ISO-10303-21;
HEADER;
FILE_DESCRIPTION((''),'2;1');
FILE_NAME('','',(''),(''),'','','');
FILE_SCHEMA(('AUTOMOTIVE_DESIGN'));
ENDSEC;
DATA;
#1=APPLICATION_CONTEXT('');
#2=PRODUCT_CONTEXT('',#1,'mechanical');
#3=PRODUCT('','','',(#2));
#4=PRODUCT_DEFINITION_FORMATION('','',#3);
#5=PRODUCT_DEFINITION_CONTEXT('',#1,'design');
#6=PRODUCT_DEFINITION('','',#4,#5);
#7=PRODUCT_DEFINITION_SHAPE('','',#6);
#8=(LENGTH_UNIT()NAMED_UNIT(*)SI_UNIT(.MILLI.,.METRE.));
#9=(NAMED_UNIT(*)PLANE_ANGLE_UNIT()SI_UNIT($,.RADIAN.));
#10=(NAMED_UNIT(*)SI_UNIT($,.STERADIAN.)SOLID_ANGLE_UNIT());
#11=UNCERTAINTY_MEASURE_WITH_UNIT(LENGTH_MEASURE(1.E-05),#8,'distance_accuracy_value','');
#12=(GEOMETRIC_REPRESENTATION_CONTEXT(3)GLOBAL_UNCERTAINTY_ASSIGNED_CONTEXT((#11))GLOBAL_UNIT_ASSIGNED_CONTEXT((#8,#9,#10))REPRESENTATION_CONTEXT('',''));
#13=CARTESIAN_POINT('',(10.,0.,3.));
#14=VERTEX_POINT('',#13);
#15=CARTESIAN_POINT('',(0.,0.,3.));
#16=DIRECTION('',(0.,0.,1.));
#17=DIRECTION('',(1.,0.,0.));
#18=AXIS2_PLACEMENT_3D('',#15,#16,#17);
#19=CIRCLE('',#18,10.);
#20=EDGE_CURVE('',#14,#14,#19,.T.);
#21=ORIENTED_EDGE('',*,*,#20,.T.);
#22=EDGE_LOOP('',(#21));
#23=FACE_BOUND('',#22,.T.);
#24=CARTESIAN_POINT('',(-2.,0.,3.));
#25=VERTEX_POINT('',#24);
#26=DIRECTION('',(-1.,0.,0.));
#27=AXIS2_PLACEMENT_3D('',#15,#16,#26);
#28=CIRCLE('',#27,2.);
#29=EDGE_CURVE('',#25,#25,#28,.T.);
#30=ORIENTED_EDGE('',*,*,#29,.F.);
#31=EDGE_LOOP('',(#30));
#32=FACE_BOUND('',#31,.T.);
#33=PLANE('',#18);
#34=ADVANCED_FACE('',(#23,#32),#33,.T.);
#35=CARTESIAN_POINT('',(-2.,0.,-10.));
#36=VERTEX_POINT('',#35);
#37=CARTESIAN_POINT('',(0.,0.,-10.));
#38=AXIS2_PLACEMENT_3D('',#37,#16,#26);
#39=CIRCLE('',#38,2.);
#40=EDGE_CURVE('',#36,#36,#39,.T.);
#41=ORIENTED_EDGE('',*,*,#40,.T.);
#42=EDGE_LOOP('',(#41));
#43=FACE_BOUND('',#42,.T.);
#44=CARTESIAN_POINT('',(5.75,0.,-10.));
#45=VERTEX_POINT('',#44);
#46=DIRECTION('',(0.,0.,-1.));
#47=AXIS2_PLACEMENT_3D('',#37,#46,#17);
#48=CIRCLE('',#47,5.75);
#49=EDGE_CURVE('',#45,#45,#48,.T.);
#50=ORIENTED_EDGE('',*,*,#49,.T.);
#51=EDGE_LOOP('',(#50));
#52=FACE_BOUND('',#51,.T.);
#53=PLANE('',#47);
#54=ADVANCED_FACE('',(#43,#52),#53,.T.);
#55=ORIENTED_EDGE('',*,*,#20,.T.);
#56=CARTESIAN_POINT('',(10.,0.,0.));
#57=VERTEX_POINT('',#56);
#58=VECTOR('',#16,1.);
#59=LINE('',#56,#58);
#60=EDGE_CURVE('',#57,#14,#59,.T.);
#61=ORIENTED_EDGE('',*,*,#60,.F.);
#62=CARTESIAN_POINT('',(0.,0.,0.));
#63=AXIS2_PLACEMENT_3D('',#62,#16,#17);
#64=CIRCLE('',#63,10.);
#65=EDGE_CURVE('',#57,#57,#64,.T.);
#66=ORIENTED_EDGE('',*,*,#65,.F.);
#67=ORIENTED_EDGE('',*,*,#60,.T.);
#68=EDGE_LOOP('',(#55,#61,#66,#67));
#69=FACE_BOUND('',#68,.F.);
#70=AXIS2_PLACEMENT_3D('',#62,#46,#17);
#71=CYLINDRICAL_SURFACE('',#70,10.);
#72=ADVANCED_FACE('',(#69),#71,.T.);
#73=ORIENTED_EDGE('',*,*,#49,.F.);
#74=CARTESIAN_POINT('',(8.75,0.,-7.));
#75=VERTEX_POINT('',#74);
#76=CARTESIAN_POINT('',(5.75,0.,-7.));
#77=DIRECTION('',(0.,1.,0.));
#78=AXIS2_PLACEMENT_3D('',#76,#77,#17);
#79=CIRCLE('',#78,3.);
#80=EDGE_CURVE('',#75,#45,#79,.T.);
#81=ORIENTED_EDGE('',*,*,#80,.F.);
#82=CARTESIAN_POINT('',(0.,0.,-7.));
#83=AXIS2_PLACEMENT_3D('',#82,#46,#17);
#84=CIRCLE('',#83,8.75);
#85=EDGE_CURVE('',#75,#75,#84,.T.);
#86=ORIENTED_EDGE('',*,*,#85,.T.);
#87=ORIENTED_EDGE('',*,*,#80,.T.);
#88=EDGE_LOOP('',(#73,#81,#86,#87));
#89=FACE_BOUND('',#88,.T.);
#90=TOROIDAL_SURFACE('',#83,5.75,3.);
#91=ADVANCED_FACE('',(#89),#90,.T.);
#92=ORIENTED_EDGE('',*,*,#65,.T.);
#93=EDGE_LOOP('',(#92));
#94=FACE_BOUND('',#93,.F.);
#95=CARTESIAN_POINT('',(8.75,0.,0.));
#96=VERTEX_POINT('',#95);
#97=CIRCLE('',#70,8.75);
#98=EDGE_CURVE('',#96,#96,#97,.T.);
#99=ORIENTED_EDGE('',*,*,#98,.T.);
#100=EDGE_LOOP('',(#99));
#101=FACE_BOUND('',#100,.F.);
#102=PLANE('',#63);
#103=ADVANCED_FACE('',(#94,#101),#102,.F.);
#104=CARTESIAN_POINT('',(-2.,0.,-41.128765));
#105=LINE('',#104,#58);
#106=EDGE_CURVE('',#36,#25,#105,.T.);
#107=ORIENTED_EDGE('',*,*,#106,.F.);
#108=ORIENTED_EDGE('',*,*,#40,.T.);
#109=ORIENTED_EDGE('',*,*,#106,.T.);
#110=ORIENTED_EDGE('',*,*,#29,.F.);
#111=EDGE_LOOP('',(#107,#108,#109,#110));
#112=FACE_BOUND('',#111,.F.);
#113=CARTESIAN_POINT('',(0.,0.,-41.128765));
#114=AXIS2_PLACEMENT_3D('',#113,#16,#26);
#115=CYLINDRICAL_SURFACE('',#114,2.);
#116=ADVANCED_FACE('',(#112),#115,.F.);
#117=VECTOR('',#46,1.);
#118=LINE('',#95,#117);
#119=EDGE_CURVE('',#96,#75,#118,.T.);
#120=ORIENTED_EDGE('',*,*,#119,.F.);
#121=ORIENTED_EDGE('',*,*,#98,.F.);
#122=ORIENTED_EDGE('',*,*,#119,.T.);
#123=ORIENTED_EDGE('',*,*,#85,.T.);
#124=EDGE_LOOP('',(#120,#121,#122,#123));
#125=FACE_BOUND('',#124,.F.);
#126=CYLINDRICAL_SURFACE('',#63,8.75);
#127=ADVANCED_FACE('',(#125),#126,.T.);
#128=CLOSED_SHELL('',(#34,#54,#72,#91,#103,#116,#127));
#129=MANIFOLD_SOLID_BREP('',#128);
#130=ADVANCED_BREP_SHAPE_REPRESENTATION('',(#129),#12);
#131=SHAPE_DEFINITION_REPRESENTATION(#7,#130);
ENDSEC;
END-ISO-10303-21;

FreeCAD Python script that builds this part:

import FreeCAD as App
import Part
import Sketcher

V = App.Vector
Q = App.Units.Quantity


def edges_at(feature, points):
    """Names of the edges that pass closest to the given points."""
    edges = feature.Shape.Edges
    near = lambda p: min(range(len(edges)), key=lambda i: edges[i].distToShape(Part.Vertex(*p))[0])
    return sorted({f"Edge{near(p) + 1}" for p in points})

doc = App.newDocument("Part")
params = doc.addObject("Spreadsheet::Sheet", "Params")
for row, (alias, value) in enumerate([
    ("sketch1_diameter", "20 mm"),
    ("pad1_length", "3 mm"),
    ("sketch2_diameter", "17.5 mm"),
    ("pad2_length", "10 mm"),
    ("fillet_radius", "3 mm"),
    ("sketch3_diameter", "4 mm"),
    ("hole_diameter", "4 mm"),
], start=1):
    params.set(f"A{row}", alias)
    params.set(f"B{row}", "=" + value)
    params.setAlias(f"B{row}", alias)

body = doc.addObject("PartDesign::Body", "Body")

# Sketch on XY plane
sketch1 = doc.addObject("Sketcher::SketchObject", "Sketch")
body.addObject(sketch1)
sketch1.AttachmentSupport = (doc.XY_Plane, [""])
sketch1.MapMode = "FlatFace"
sketch1.addGeometry(Part.Circle(V(0, 0, 0), V(0, 0, 1), 10), False)
sketch1.addConstraint(Sketcher.Constraint("Coincident", 0, 3, -1, 1))
sketch1.addConstraint(Sketcher.Constraint("Diameter", 0, Q("20 mm")))
sketch1.setExpression("Constraints[1]", "Params.sketch1_diameter")
pad1 = doc.addObject("PartDesign::Pad", "Pad")
body.addObject(pad1)
pad1.Profile = sketch1
pad1.setExpression("Length", "Params.pad1_length")

# Sketch on XY plane
sketch2 = doc.addObject("Sketcher::SketchObject", "Sketch001")
body.addObject(sketch2)
sketch2.AttachmentSupport = (doc.XY_Plane, [""])
sketch2.MapMode = "FlatFace"
sketch2.addGeometry(Part.Circle(V(0, 0, 0), V(0, 0, 1), 9), False)
sketch2.addConstraint(Sketcher.Constraint("Coincident", 0, 3, -1, 1))
sketch2.addConstraint(Sketcher.Constraint("Diameter", 0, Q("17.5 mm")))
sketch2.setExpression("Constraints[1]", "Params.sketch2_diameter")
pad2 = doc.addObject("PartDesign::Pad", "Pad001")
body.addObject(pad2)
pad2.Profile = sketch2
pad2.setExpression("Length", "Params.pad2_length")
pad2.Reversed = True
doc.recompute()

fillet = doc.addObject("PartDesign::Fillet", "Fillet")
body.addObject(fillet)
fillet.Base = (pad2, edges_at(pad2, [(-8.75, 0, -10)]))
fillet.setExpression("Radius", "Params.fillet_radius")

# Sketch on XY plane
sketch3 = doc.addObject("Sketcher::SketchObject", "Sketch002")
body.addObject(sketch3)
sketch3.AttachmentSupport = (doc.XY_Plane, [""])
sketch3.MapMode = "FlatFace"
sketch3.AttachmentOffset = App.Placement(V(0, 0, -10), App.Rotation())
sketch3.addGeometry(Part.Circle(V(0, 0, 0), V(0, 0, 1), 2), False)
sketch3.addConstraint(Sketcher.Constraint("Coincident", 0, 3, -1, 1))
sketch3.addConstraint(Sketcher.Constraint("Diameter", 0, Q("4 mm")))
sketch3.setExpression("Constraints[1]", "Params.sketch3_diameter")
doc.recompute()
hole = doc.addObject("PartDesign::Hole", "Hole")
body.addObject(hole)
hole.Profile = sketch3
hole.ThreadType = "None"
hole.setExpression("Diameter", "Params.hole_diameter")
hole.DepthType = "ThroughAll"
hole.Reversed = True

doc.recompute()
